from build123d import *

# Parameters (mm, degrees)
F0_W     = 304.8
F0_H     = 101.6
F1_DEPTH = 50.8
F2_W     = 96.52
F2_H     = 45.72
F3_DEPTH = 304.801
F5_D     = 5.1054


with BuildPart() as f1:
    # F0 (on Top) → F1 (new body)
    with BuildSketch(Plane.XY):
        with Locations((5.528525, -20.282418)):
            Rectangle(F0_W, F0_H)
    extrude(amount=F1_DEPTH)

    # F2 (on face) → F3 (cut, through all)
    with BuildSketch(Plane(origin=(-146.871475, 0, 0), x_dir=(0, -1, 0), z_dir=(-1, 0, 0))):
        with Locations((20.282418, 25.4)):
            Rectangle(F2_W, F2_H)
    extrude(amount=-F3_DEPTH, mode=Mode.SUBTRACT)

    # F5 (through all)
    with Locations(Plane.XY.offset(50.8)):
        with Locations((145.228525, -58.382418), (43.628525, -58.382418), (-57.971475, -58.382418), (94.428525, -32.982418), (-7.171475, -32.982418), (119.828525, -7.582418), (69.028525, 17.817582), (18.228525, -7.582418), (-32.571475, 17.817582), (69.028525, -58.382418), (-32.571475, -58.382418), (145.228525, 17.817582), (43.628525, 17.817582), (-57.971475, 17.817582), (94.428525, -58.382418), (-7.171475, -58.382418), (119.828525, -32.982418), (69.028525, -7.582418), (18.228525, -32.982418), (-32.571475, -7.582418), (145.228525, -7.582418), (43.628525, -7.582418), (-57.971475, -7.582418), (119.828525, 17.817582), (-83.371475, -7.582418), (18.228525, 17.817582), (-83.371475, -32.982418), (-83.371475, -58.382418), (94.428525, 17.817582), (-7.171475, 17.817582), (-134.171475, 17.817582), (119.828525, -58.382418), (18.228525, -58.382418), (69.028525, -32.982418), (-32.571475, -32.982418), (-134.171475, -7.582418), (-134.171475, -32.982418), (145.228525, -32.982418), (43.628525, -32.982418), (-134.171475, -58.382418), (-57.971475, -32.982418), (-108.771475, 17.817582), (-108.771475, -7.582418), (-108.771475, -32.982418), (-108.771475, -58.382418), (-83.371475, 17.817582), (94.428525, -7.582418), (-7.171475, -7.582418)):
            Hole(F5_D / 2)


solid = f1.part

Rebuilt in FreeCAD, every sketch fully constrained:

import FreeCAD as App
import Part
import Sketcher

V = App.Vector
Q = App.Units.Quantity


def add_polygon(sketch, points):
    """Adds a closed chain of lines whose ends are joined by coincident constraints."""
    first, n = sketch.GeometryCount, len(points)
    for a, b in zip(points, points[1:] + points[:1]):
        sketch.addGeometry(Part.LineSegment(App.Vector(*a, 0), App.Vector(*b, 0)), False)
    for i in range(n):
        sketch.addConstraint(Sketcher.Constraint("Coincident", first + i, 2, first + (i + 1) % n, 1))

doc = App.newDocument("Part")
body = doc.addObject("PartDesign::Body", "Body")

sketch1 = body.newObject("Sketcher::SketchObject", "Sketch")
sketch1.AttachmentSupport = (doc.getObject("XY_Plane"), [""])
sketch1.MapMode = "FlatFace"
add_polygon(sketch1, [(-147, 31), (-147, -71), (158, -71), (158, 31)])
sketch1.addConstraint(Sketcher.Constraint("Vertical", 0))
sketch1.addConstraint(Sketcher.Constraint("Horizontal", 1))
sketch1.addConstraint(Sketcher.Constraint("Vertical", 2))
sketch1.addConstraint(Sketcher.Constraint("Horizontal", 3))
sketch1.addConstraint(Sketcher.Constraint("DistanceX", 1, 1, 1, 2, Q("12 in")))
sketch1.addConstraint(Sketcher.Constraint("DistanceY", 0, 2, 0, 1, Q("4 in")))
sketch1.addConstraint(Sketcher.Constraint("DistanceY", 0, 2, -1, 1, 71.082418))
sketch1.addConstraint(Sketcher.Constraint("DistanceX", 0, 2, -1, 1, 146.871475))
pad1 = body.newObject("PartDesign::Pad", "Pad")
pad1.Profile = sketch1
pad1.Length = Q("2 in")

sketch2 = body.newObject("Sketcher::SketchObject", "Sketch001")
sketch2.AttachmentSupport = (doc.getObject("YZ_Plane"), [""])
sketch2.MapMode = "FlatFace"
sketch2.AttachmentOffset = App.Placement(V(0, 0, -146.871475), App.Rotation())
add_polygon(sketch2, [(28, 48), (28, 3), (-69, 3), (-69, 48)])
sketch2.addConstraint(Sketcher.Constraint("Vertical", 0))
sketch2.addConstraint(Sketcher.Constraint("Horizontal", 1))
sketch2.addConstraint(Sketcher.Constraint("Vertical", 2))
sketch2.addConstraint(Sketcher.Constraint("Horizontal", 3))
sketch2.addConstraint(Sketcher.Constraint("DistanceX", 1, 2, 1, 1, Q("3.8 in")))
sketch2.addConstraint(Sketcher.Constraint("DistanceY", 0, 2, 0, 1, Q("1.8 in")))
sketch2.addConstraint(Sketcher.Constraint("DistanceY", -1, 1, 0, 2, Q("0.1 in")))
sketch2.addConstraint(Sketcher.Constraint("DistanceX", -1, 1, 0, 2, 27.977582))
pocket1 = body.newObject("PartDesign::Pocket", "Pocket")
pocket1.Profile = sketch2
pocket1.Type = "ThroughAll"
pocket1.Reversed = True

sketch3 = body.newObject("Sketcher::SketchObject", "Sketch002")
sketch3.AttachmentSupport = (doc.getObject("XY_Plane"), [""])
sketch3.MapMode = "FlatFace"
sketch3.AttachmentOffset = App.Placement(V(0, 0, 2 * 25.4), App.Rotation())
sketch3.addGeometry(Part.Circle(V(145.2, -58.4, 0), V(0, 0, 1), 2.6), False)
sketch3.addGeometry(Part.Circle(V(43.6, -58.4, 0), V(0, 0, 1), 2.6), False)
sketch3.addGeometry(Part.Circle(V(-58, -58.4, 0), V(0, 0, 1), 2.6), False)
sketch3.addGeometry(Part.Circle(V(94.4, -33, 0), V(0, 0, 1), 2.6), False)
sketch3.addGeometry(Part.Circle(V(-7.2, -33, 0), V(0, 0, 1), 2.6), False)
sketch3.addGeometry(Part.Circle(V(119.8, -7.6, 0), V(0, 0, 1), 2.6), False)
sketch3.addGeometry(Part.Circle(V(69, 17.8, 0), V(0, 0, 1), 2.6), False)
sketch3.addGeometry(Part.Circle(V(18.2, -7.6, 0), V(0, 0, 1), 2.6), False)
sketch3.addGeometry(Part.Circle(V(-32.6, 17.8, 0), V(0, 0, 1), 2.6), False)
sketch3.addGeometry(Part.Circle(V(69, -58.4, 0), V(0, 0, 1), 2.6), False)
sketch3.addGeometry(Part.Circle(V(-32.6, -58.4, 0), V(0, 0, 1), 2.6), False)
sketch3.addGeometry(Part.Circle(V(145.2, 17.8, 0), V(0, 0, 1), 2.6), False)
sketch3.addGeometry(Part.Circle(V(43.6, 17.8, 0), V(0, 0, 1), 2.6), False)
sketch3.addGeometry(Part.Circle(V(-58, 17.8, 0), V(0, 0, 1), 2.6), False)
sketch3.addGeometry(Part.Circle(V(94.4, -58.4, 0), V(0, 0, 1), 2.6), False)
sketch3.addGeometry(Part.Circle(V(-7.2, -58.4, 0), V(0, 0, 1), 2.6), False)
sketch3.addGeometry(Part.Circle(V(119.8, -33, 0), V(0, 0, 1), 2.6), False)
sketch3.addGeometry(Part.Circle(V(69, -7.6, 0), V(0, 0, 1), 2.6), False)
sketch3.addGeometry(Part.Circle(V(18.2, -33, 0), V(0, 0, 1), 2.6), False)
sketch3.addGeometry(Part.Circle(V(-32.6, -7.6, 0), V(0, 0, 1), 2.6), False)
sketch3.addGeometry(Part.Circle(V(145.2, -7.6, 0), V(0, 0, 1), 2.6), False)
sketch3.addGeometry(Part.Circle(V(43.6, -7.6, 0), V(0, 0, 1), 2.6), False)
sketch3.addGeometry(Part.Circle(V(-58, -7.6, 0), V(0, 0, 1), 2.6), False)
sketch3.addGeometry(Part.Circle(V(119.8, 17.8, 0), V(0, 0, 1), 2.6), False)
sketch3.addGeometry(Part.Circle(V(-83.4, -7.6, 0), V(0, 0, 1), 2.6), False)
sketch3.addGeometry(Part.Circle(V(18.2, 17.8, 0), V(0, 0, 1), 2.6), False)
sketch3.addGeometry(Part.Circle(V(-83.4, -33, 0), V(0, 0, 1), 2.6), False)
sketch3.addGeometry(Part.Circle(V(-83.4, -58.4, 0), V(0, 0, 1), 2.6), False)
sketch3.addGeometry(Part.Circle(V(94.4, 17.8, 0), V(0, 0, 1), 2.6), False)
sketch3.addGeometry(Part.Circle(V(-7.2, 17.8, 0), V(0, 0, 1), 2.6), False)
sketch3.addGeometry(Part.Circle(V(-134.2, 17.8, 0), V(0, 0, 1), 2.6), False)
sketch3.addGeometry(Part.Circle(V(119.8, -58.4, 0), V(0, 0, 1), 2.6), False)
sketch3.addGeometry(Part.Circle(V(18.2, -58.4, 0), V(0, 0, 1), 2.6), False)
sketch3.addGeometry(Part.Circle(V(69, -33, 0), V(0, 0, 1), 2.6), False)
sketch3.addGeometry(Part.Circle(V(-32.6, -33, 0), V(0, 0, 1), 2.6), False)
sketch3.addGeometry(Part.Circle(V(-134.2, -7.6, 0), V(0, 0, 1), 2.6), False)
sketch3.addGeometry(Part.Circle(V(-134.2, -33, 0), V(0, 0, 1), 2.6), False)
sketch3.addGeometry(Part.Circle(V(145.2, -33, 0), V(0, 0, 1), 2.6), False)
sketch3.addGeometry(Part.Circle(V(43.6, -33, 0), V(0, 0, 1), 2.6), False)
sketch3.addGeometry(Part.Circle(V(-134.2, -58.4, 0), V(0, 0, 1), 2.6), False)
sketch3.addGeometry(Part.Circle(V(-58, -33, 0), V(0, 0, 1), 2.6), False)
sketch3.addGeometry(Part.Circle(V(-108.8, 17.8, 0), V(0, 0, 1), 2.6), False)
sketch3.addGeometry(Part.Circle(V(-108.8, -7.6, 0), V(0, 0, 1), 2.6), False)
sketch3.addGeometry(Part.Circle(V(-108.8, -33, 0), V(0, 0, 1), 2.6), False)
sketch3.addGeometry(Part.Circle(V(-108.8, -58.4, 0), V(0, 0, 1), 2.6), False)
sketch3.addGeometry(Part.Circle(V(-83.4, 17.8, 0), V(0, 0, 1), 2.6), False)
sketch3.addGeometry(Part.Circle(V(94.4, -7.6, 0), V(0, 0, 1), 2.6), False)
sketch3.addGeometry(Part.Circle(V(-7.2, -7.6, 0), V(0, 0, 1), 2.6), False)
sketch3.addConstraint(Sketcher.Constraint("Equal", 0, 1))
sketch3.addConstraint(Sketcher.Constraint("Equal", 1, 2))
sketch3.addConstraint(Sketcher.Constraint("Equal", 2, 3))
sketch3.addConstraint(Sketcher.Constraint("Equal", 3, 4))
sketch3.addConstraint(Sketcher.Constraint("Equal", 4, 5))
sketch3.addConstraint(Sketcher.Constraint("Equal", 5, 6))
sketch3.addConstraint(Sketcher.Constraint("Equal", 6, 7))
sketch3.addConstraint(Sketcher.Constraint("Equal", 7, 8))
sketch3.addConstraint(Sketcher.Constraint("Equal", 8, 9))
sketch3.addConstraint(Sketcher.Constraint("Equal", 9, 10))
sketch3.addConstraint(Sketcher.Constraint("Equal", 10, 11))
sketch3.addConstraint(Sketcher.Constraint("Equal", 11, 12))
sketch3.addConstraint(Sketcher.Constraint("Equal", 12, 13))
sketch3.addConstraint(Sketcher.Constraint("Equal", 13, 14))
sketch3.addConstraint(Sketcher.Constraint("Equal", 14, 15))
sketch3.addConstraint(Sketcher.Constraint("Equal", 15, 16))
sketch3.addConstraint(Sketcher.Constraint("Equal", 16, 17))
sketch3.addConstraint(Sketcher.Constraint("Equal", 17, 18))
sketch3.addConstraint(Sketcher.Constraint("Equal", 18, 19))
sketch3.addConstraint(Sketcher.Constraint("Equal", 19, 20))
sketch3.addConstraint(Sketcher.Constraint("Equal", 20, 21))
sketch3.addConstraint(Sketcher.Constraint("Equal", 21, 22))
sketch3.addConstraint(Sketcher.Constraint("Equal", 22, 23))
sketch3.addConstraint(Sketcher.Constraint("Equal", 23, 24))
sketch3.addConstraint(Sketcher.Constraint("Equal", 24, 25))
sketch3.addConstraint(Sketcher.Constraint("Equal", 25, 26))
sketch3.addConstraint(Sketcher.Constraint("Equal", 26, 27))
sketch3.addConstraint(Sketcher.Constraint("Equal", 27, 28))
sketch3.addConstraint(Sketcher.Constraint("Equal", 28, 29))
sketch3.addConstraint(Sketcher.Constraint("Equal", 29, 30))
sketch3.addConstraint(Sketcher.Constraint("Equal", 30, 31))
sketch3.addConstraint(Sketcher.Constraint("Equal", 31, 32))
sketch3.addConstraint(Sketcher.Constraint("Equal", 32, 33))
sketch3.addConstraint(Sketcher.Constraint("Equal", 33, 34))
sketch3.addConstraint(Sketcher.Constraint("Equal", 34, 35))
sketch3.addConstraint(Sketcher.Constraint("Equal", 35, 36))
sketch3.addConstraint(Sketcher.Constraint("Equal", 36, 37))
sketch3.addConstraint(Sketcher.Constraint("Equal", 37, 38))
sketch3.addConstraint(Sketcher.Constraint("Equal", 38, 39))
sketch3.addConstraint(Sketcher.Constraint("Equal", 39, 40))
sketch3.addConstraint(Sketcher.Constraint("Equal", 40, 41))
sketch3.addConstraint(Sketcher.Constraint("Equal", 41, 42))
sketch3.addConstraint(Sketcher.Constraint("Equal", 42, 43))
sketch3.addConstraint(Sketcher.Constraint("Equal", 43, 44))
sketch3.addConstraint(Sketcher.Constraint("Equal", 44, 45))
sketch3.addConstraint(Sketcher.Constraint("Equal", 45, 46))
sketch3.addConstraint(Sketcher.Constraint("Equal", 46, 47))
sketch3.addConstraint(Sketcher.Constraint("Horizontal", 0, 3, 1, 3))
sketch3.addConstraint(Sketcher.Constraint("Horizontal", 1, 3, 2, 3))
sketch3.addConstraint(Sketcher.Constraint("Horizontal", 3, 3, 4, 3))
sketch3.addConstraint(Sketcher.Constraint("Horizontal", 5, 3, 7, 3))
sketch3.addConstraint(Sketcher.Constraint("Horizontal", 6, 3, 8, 3))
sketch3.addConstraint(Sketcher.Constraint("Horizontal", 2, 3, 9, 3))
sketch3.addConstraint(Sketcher.Constraint("Horizontal", 9, 3, 10, 3))
sketch3.addConstraint(Sketcher.Constraint("Horizontal", 8, 3, 11, 3))
sketch3.addConstraint(Sketcher.Constraint("Horizontal", 11, 3, 12, 3))
sketch3.addConstraint(Sketcher.Constraint("Horizontal", 12, 3, 13, 3))
sketch3.addConstraint(Sketcher.Constraint("Horizontal", 10, 3, 14, 3))
sketch3.addConstraint(Sketcher.Constraint("Horizontal", 14, 3, 15, 3))
sketch3.addConstraint(Sketcher.Constraint("Horizontal", 4, 3, 16, 3))
sketch3.addConstraint(Sketcher.Constraint("Horizontal", 7, 3, 17, 3))
sketch3.addConstraint(Sketcher.Constraint("Horizontal", 16, 3, 18, 3))
sketch3.addConstraint(Sketcher.Constraint("Horizontal", 17, 3, 19, 3))
sketch3.addConstraint(Sketcher.Constraint("Horizontal", 19, 3, 20, 3))
sketch3.addConstraint(Sketcher.Constraint("Horizontal", 20, 3, 21, 3))
sketch3.addConstraint(Sketcher.Constraint("Horizontal", 21, 3, 22, 3))
sketch3.addConstraint(Sketcher.Constraint("Horizontal", 13, 3, 23, 3))
sketch3.addConstraint(Sketcher.Constraint("Horizontal", 22, 3, 24, 3))
sketch3.addConstraint(Sketcher.Constraint("Horizontal", 23, 3, 25, 3))
sketch3.addConstraint(Sketcher.Constraint("Horizontal", 18, 3, 26, 3))
sketch3.addConstraint(Sketcher.Constraint("Horizontal", 15, 3, 27, 3))
sketch3.addConstraint(Sketcher.Constraint("Horizontal", 25, 3, 28, 3))
sketch3.addConstraint(Sketcher.Constraint("Horizontal", 28, 3, 29, 3))
sketch3.addConstraint(Sketcher.Constraint("Horizontal", 29, 3, 30, 3))
sketch3.addConstraint(Sketcher.Constraint("Horizontal", 27, 3, 31, 3))
sketch3.addConstraint(Sketcher.Constraint("Horizontal", 31, 3, 32, 3))
sketch3.addConstraint(Sketcher.Constraint("Horizontal", 26, 3, 33, 3))
sketch3.addConstraint(Sketcher.Constraint("Horizontal", 33, 3, 34, 3))
sketch3.addConstraint(Sketcher.Constraint("Horizontal", 24, 3, 35, 3))
sketch3.addConstraint(Sketcher.Constraint("Horizontal", 34, 3, 36, 3))
sketch3.addConstraint(Sketcher.Constraint("Horizontal", 36, 3, 37, 3))
sketch3.addConstraint(Sketcher.Constraint("Horizontal", 37, 3, 38, 3))
sketch3.addConstraint(Sketcher.Constraint("Horizontal", 32, 3, 39, 3))
sketch3.addConstraint(Sketcher.Constraint("Horizontal", 38, 3, 40, 3))
sketch3.addConstraint(Sketcher.Constraint("Horizontal", 30, 3, 41, 3))
sketch3.addConstraint(Sketcher.Constraint("Horizontal", 35, 3, 42, 3))
sketch3.addConstraint(Sketcher.Constraint("Horizontal", 40, 3, 43, 3))
sketch3.addConstraint(Sketcher.Constraint("Horizontal", 39, 3, 44, 3))
sketch3.addConstraint(Sketcher.Constraint("Horizontal", 41, 3, 45, 3))
sketch3.addConstraint(Sketcher.Constraint("Horizontal", 42, 3, 46, 3))
sketch3.addConstraint(Sketcher.Constraint("Horizontal", 46, 3, 47, 3))
sketch3.addConstraint(Sketcher.Constraint("Vertical", 6, 3, 9, 3))
sketch3.addConstraint(Sketcher.Constraint("Vertical", 8, 3, 10, 3))
sketch3.addConstraint(Sketcher.Constraint("Vertical", 0, 3, 11, 3))
sketch3.addConstraint(Sketcher.Constraint("Vertical", 1, 3, 12, 3))
sketch3.addConstraint(Sketcher.Constraint("Vertical", 2, 3, 13, 3))
sketch3.addConstraint(Sketcher.Constraint("Vertical", 3, 3, 14, 3))
sketch3.addConstraint(Sketcher.Constraint("Vertical", 4, 3, 15, 3))
sketch3.addConstraint(Sketcher.Constraint("Vertical", 5, 3, 16, 3))
sketch3.addConstraint(Sketcher.Constraint("Vertical", 9, 3, 17, 3))
sketch3.addConstraint(Sketcher.Constraint("Vertical", 7, 3, 18, 3))
sketch3.addConstraint(Sketcher.Constraint("Vertical", 10, 3, 19, 3))
sketch3.addConstraint(Sketcher.Constraint("Vertical", 11, 3, 20, 3))
sketch3.addConstraint(Sketcher.Constraint("Vertical", 12, 3, 21, 3))
sketch3.addConstraint(Sketcher.Constraint("Vertical", 13, 3, 22, 3))
sketch3.addConstraint(Sketcher.Constraint("Vertical", 16, 3, 23, 3))
sketch3.addConstraint(Sketcher.Constraint("Vertical", 18, 3, 25, 3))
sketch3.addConstraint(Sketcher.Constraint("Vertical", 24, 3, 26, 3))
sketch3.addConstraint(Sketcher.Constraint("Vertical", 26, 3, 27, 3))
sketch3.addConstraint(Sketcher.Constraint("Vertical", 14, 3, 28, 3))
sketch3.addConstraint(Sketcher.Constraint("Vertical", 15, 3, 29, 3))
sketch3.addConstraint(Sketcher.Constraint("Vertical", 23, 3, 31, 3))
sketch3.addConstraint(Sketcher.Constraint("Vertical", 25, 3, 32, 3))
sketch3.addConstraint(Sketcher.Constraint("Vertical", 17, 3, 33, 3))
sketch3.addConstraint(Sketcher.Constraint("Vertical", 19, 3, 34, 3))
sketch3.addConstraint(Sketcher.Constraint("Vertical", 30, 3, 35, 3))
sketch3.addConstraint(Sketcher.Constraint("Vertical", 35, 3, 36, 3))
sketch3.addConstraint(Sketcher.Constraint("Vertical", 20, 3, 37, 3))
sketch3.addConstraint(Sketcher.Constraint("Vertical", 21, 3, 38, 3))
sketch3.addConstraint(Sketcher.Constraint("Vertical", 36, 3, 39, 3))
sketch3.addConstraint(Sketcher.Constraint("Vertical", 22, 3, 40, 3))
sketch3.addConstraint(Sketcher.Constraint("Vertical", 41, 3, 42, 3))
sketch3.addConstraint(Sketcher.Constraint("Vertical", 42, 3, 43, 3))
sketch3.addConstraint(Sketcher.Constraint("Vertical", 43, 3, 44, 3))
sketch3.addConstraint(Sketcher.Constraint("Vertical", 27, 3, 45, 3))
sketch3.addConstraint(Sketcher.Constraint("Vertical", 28, 3, 46, 3))
sketch3.addConstraint(Sketcher.Constraint("Vertical", 29, 3, 47, 3))
sketch3.addConstraint(Sketcher.Constraint("Diameter", 0, Q("0.201 in")))
sketch3.addConstraint(Sketcher.Constraint("DistanceX", 1, 3, 0, 3, Q("4 in")))
sketch3.addConstraint(Sketcher.Constraint("DistanceX", 2, 3, 1, 3, Q("4 in")))
sketch3.addConstraint(Sketcher.Constraint("DistanceX", 1, 3, 3, 3, Q("2 in")))
sketch3.addConstraint(Sketcher.Constraint("DistanceY", 1, 3, 3, 3, Q("1 in")))
sketch3.addConstraint(Sketcher.Constraint("DistanceX", 2, 3, 4, 3, Q("2 in")))
sketch3.addConstraint(Sketcher.Constraint("DistanceX", 3, 3, 5, 3, Q("1 in")))
sketch3.addConstraint(Sketcher.Constraint("DistanceY", 3, 3, 5, 3, Q("1 in")))
sketch3.addConstraint(Sketcher.Constraint("DistanceX", 6, 3, 5, 3, Q("2 in")))
sketch3.addConstraint(Sketcher.Constraint("DistanceY", 5, 3, 6, 3, Q("1 in")))
sketch3.addConstraint(Sketcher.Constraint("DistanceX", 4, 3, 7, 3, Q("1 in")))
sketch3.addConstraint(Sketcher.Constraint("DistanceX", 8, 3, 7, 3, Q("2 in")))
sketch3.addConstraint(Sketcher.Constraint("DistanceX", 24, 3, 22, 3, Q("1 in")))
sketch3.addConstraint(Sketcher.Constraint("DistanceX", 30, 3, 24, 3, Q("2 in")))
sketch3.addConstraint(Sketcher.Constraint("DistanceX", 30, 3, 41, 3, Q("1 in")))
sketch3.addConstraint(Sketcher.Constraint("DistanceY", 3, 3, -1, 1, 32.982418))
sketch3.addConstraint(Sketcher.Constraint("DistanceX", -1, 1, 0, 3, 145.228525))
doc.recompute()
hole = body.newObject("PartDesign::Hole", "Hole")
hole.Profile = sketch3
hole.ThreadType = "None"
hole.Diameter = Q("0.201 in")
hole.DepthType = "ThroughAll"

doc.recompute()
